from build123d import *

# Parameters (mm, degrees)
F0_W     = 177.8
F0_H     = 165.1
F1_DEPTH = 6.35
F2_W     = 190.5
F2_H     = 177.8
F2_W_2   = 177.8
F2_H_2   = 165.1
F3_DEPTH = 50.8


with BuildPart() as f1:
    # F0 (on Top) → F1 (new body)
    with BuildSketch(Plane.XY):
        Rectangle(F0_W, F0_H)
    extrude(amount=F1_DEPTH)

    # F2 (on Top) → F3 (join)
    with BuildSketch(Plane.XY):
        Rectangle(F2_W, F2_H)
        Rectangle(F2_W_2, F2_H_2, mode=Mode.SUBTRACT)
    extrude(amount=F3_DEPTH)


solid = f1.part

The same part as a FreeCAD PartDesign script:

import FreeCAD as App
import Part
import Sketcher
from FreeCAD import Vector
Q = App.Units.Quantity


def add_polygon(sketch, points):
    """Adds a closed chain of lines whose ends are joined by coincident constraints."""
    first, n = sketch.GeometryCount, len(points)
    for a, b in zip(points, points[1:] + points[:1]):
        sketch.addGeometry(Part.LineSegment(App.Vector(*a, 0), App.Vector(*b, 0)), False)
    for i in range(n):
        sketch.addConstraint(Sketcher.Constraint("Coincident", first + i, 2, first + (i + 1) % n, 1))

doc = App.newDocument("Part")
params = doc.addObject("Spreadsheet::Sheet", "Params")
for row, (alias, value) in enumerate([
    ("sketch1_width", "7 in"),
    ("sketch1_height", "6.5 in"),
    ("pad1_length", "0.25 in"),
    ("sketch2_width", "7 in"),
    ("sketch2_width2", "7.5 in"),
    ("sketch2_height", "6.5 in"),
    ("pad2_length", "2 in"),
], start=1):
    params.set(f"A{row}", alias)
    params.set(f"B{row}", "=" + value)
    params.setAlias(f"B{row}", alias)

body = doc.addObject("PartDesign::Body", "Body")

# Sketch on XY plane
sketch1 = body.newObject("Sketcher::SketchObject", "Sketch")
sketch1.AttachmentSupport = (doc.getObject("XY_Plane"), [""])
sketch1.MapMode = "FlatFace"
add_polygon(sketch1, [(-89, 83), (-89, -83), (89, -83), (89, 83)])  # lines 0-3
sketch1.addConstraint([
    Sketcher.Constraint("Vertical", 0),
    Sketcher.Constraint("Horizontal", 1),
    Sketcher.Constraint("Vertical", 2),
    Sketcher.Constraint("Horizontal", 3),
    Sketcher.Constraint("Symmetric", 0, 2, 2, 2, -1, 1),
    Sketcher.Constraint("DistanceX", 1, 1, 1, 2, Q("7 in")),
    Sketcher.Constraint("DistanceY", 0, 2, 0, 1, Q("6.5 in")),
])
sketch1.setExpression("Constraints[9]", "Params.sketch1_width")
sketch1.setExpression("Constraints[10]", "Params.sketch1_height")
pad1 = body.newObject("PartDesign::Pad", "Pad")
pad1.Profile = sketch1
pad1.setExpression("Length", "Params.pad1_length")

# Sketch on XY plane
sketch2 = body.newObject("Sketcher::SketchObject", "Sketch001")
sketch2.AttachmentSupport = (doc.getObject("XY_Plane"), [""])
sketch2.MapMode = "FlatFace"
add_polygon(sketch2, [(-95, 89), (-95, -89), (95, -89), (95, 89)])  # lines 0-3
add_polygon(sketch2, [(89, -83), (-89, -83), (-89, 83), (89, 83)])  # lines 4-7
sketch2.addConstraint([
    Sketcher.Constraint("Vertical", 0),
    Sketcher.Constraint("Horizontal", 1),
    Sketcher.Constraint("Vertical", 2),
    Sketcher.Constraint("Horizontal", 3),
    Sketcher.Constraint("Horizontal", 4),
    Sketcher.Constraint("Vertical", 5),
    Sketcher.Constraint("Horizontal", 6),
    Sketcher.Constraint("Vertical", 7),
    Sketcher.Constraint("Symmetric", 0, 2, 2, 2, -1, 1),
    Sketcher.Constraint("Symmetric", 4, 2, 6, 2, -1, 1),
    Sketcher.Constraint("Equal", 6, 0),
    Sketcher.Constraint("DistanceX", 4, 2, 4, 1, Q("7 in")),
    Sketcher.Constraint("DistanceX", 1, 1, 1, 2, Q("7.5 in")),
    Sketcher.Constraint("DistanceY", 5, 1, 5, 2, Q("6.5 in")),
])
sketch2.setExpression("Constraints[19]", "Params.sketch2_width")
sketch2.setExpression("Constraints[20]", "Params.sketch2_width2")
sketch2.setExpression("Constraints[21]", "Params.sketch2_height")
pad2 = body.newObject("PartDesign::Pad", "Pad001")
pad2.Profile = sketch2
pad2.setExpression("Length", "Params.pad2_length")

doc.recompute()
